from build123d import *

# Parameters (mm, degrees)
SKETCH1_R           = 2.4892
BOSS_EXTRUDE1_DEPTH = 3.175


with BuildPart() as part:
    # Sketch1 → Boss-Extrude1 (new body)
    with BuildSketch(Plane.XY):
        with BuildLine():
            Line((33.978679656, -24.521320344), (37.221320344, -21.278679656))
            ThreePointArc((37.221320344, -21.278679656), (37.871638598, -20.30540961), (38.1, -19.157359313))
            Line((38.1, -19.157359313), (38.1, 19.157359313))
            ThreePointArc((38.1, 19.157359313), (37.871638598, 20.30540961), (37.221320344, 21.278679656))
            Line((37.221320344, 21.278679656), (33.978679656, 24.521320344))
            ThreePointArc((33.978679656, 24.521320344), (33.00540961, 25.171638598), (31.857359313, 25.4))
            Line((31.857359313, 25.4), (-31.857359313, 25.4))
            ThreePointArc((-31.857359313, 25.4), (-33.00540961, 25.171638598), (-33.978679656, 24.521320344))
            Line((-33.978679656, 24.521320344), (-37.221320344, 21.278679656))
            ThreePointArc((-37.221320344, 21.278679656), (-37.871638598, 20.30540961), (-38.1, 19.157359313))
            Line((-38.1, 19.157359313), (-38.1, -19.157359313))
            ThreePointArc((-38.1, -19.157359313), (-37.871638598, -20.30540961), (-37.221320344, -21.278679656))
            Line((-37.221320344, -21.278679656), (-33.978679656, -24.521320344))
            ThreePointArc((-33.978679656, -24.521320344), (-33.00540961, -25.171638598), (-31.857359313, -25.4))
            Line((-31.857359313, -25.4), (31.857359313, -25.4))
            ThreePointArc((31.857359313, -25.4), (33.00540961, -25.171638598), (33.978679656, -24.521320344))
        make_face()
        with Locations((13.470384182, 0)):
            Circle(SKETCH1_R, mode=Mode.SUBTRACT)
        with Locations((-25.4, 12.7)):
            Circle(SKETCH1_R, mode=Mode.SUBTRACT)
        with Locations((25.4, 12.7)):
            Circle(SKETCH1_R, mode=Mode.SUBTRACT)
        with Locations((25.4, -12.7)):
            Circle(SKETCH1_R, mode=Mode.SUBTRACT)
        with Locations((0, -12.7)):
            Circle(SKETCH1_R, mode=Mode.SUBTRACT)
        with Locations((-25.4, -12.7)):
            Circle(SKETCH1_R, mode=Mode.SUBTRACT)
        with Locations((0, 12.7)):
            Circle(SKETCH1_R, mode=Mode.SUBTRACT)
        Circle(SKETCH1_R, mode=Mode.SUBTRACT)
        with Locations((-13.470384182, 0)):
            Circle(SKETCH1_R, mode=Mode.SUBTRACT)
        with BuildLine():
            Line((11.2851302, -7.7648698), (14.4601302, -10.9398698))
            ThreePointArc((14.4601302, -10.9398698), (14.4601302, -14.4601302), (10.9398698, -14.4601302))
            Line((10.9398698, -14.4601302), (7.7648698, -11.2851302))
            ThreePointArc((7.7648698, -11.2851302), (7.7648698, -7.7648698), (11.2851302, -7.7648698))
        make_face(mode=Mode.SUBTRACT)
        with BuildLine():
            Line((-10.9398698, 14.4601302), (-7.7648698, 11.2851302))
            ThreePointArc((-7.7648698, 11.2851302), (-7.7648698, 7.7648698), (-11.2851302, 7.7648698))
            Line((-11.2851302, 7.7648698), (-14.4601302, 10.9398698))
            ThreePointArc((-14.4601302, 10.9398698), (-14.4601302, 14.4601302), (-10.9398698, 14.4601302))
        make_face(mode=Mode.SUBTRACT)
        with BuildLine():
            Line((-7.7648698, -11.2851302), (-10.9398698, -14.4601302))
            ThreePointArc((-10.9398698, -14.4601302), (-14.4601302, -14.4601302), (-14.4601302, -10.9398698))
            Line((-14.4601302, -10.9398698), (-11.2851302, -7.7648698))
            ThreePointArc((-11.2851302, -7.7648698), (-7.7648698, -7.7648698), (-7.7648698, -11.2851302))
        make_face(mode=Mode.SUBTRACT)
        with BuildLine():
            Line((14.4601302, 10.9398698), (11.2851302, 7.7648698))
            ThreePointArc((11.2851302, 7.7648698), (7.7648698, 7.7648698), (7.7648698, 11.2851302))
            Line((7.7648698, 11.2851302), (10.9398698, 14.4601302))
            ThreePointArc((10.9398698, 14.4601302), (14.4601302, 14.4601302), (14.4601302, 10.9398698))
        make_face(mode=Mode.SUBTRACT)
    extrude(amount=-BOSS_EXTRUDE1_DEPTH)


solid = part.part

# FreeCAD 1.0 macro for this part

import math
import FreeCAD as App
import Part
import Sketcher
from FreeCAD import Vector
Q = App.Units.Quantity

doc = App.newDocument("Part")
params = doc.addObject("Spreadsheet::Sheet", "Params")
for row, (alias, value) in enumerate([
    ("sketch1_diameter", "0.196 in"),
    ("pad1_length", "0.125 in"),
], start=1):
    params.set(f"A{row}", alias)
    params.set(f"B{row}", "=" + value)
    params.setAlias(f"B{row}", alias)

body = doc.addObject("PartDesign::Body", "Body")

# Sketch on XY plane
sketch1 = body.newObject("Sketcher::SketchObject", "Sketch")
sketch1.AttachmentSupport = (doc.getObject("XY_Plane"), [""])
sketch1.MapMode = "FlatFace"
sketch1.addGeometry(Part.LineSegment(Vector(34, -24.5, 0), Vector(37.2, -21.3, 0)), False)
sketch1.addGeometry(Part.ArcOfCircle(Part.Circle(Vector(35.1, -19.2, 0), Vector(0, 0, 1), 3), math.radians(-45), math.radians(0)), False)
sketch1.addGeometry(Part.LineSegment(Vector(38.1, -19.2, 0), Vector(38.1, 19.2, 0)), False)
sketch1.addGeometry(Part.ArcOfCircle(Part.Circle(Vector(35.1, 19.2, 0), Vector(0, 0, 1), 3), math.radians(0), math.radians(45)), False)
sketch1.addGeometry(Part.LineSegment(Vector(37.2, 21.3, 0), Vector(34, 24.5, 0)), False)
sketch1.addGeometry(Part.ArcOfCircle(Part.Circle(Vector(31.9, 22.4, 0), Vector(0, 0, 1), 3), math.radians(45), math.radians(90)), False)
sketch1.addGeometry(Part.LineSegment(Vector(31.9, 25.4, 0), Vector(-31.9, 25.4, 0)), False)
sketch1.addGeometry(Part.ArcOfCircle(Part.Circle(Vector(-31.9, 22.4, 0), Vector(0, 0, 1), 3), math.radians(90), math.radians(135)), False)
sketch1.addGeometry(Part.LineSegment(Vector(-34, 24.5, 0), Vector(-37.2, 21.3, 0)), False)
sketch1.addGeometry(Part.ArcOfCircle(Part.Circle(Vector(-35.1, 19.2, 0), Vector(0, 0, 1), 3), math.radians(135), math.radians(180)), False)
sketch1.addGeometry(Part.LineSegment(Vector(-38.1, 19.2, 0), Vector(-38.1, -19.2, 0)), False)
sketch1.addGeometry(Part.ArcOfCircle(Part.Circle(Vector(-35.1, -19.2, 0), Vector(0, 0, 1), 3), math.radians(180), math.radians(225)), False)
sketch1.addGeometry(Part.LineSegment(Vector(-37.2, -21.3, 0), Vector(-34, -24.5, 0)), False)
sketch1.addGeometry(Part.ArcOfCircle(Part.Circle(Vector(-31.9, -22.4, 0), Vector(0, 0, 1), 3), math.radians(-135), math.radians(-90)), False)
sketch1.addGeometry(Part.LineSegment(Vector(-31.9, -25.4, 0), Vector(31.9, -25.4, 0)), False)
sketch1.addGeometry(Part.ArcOfCircle(Part.Circle(Vector(31.9, -22.4, 0), Vector(0, 0, 1), 3), math.radians(-90), math.radians(-45)), False)
sketch1.addGeometry(Part.Circle(Vector(-25.4, -12.7, 0), Vector(0, 0, 1), 2.5), False)
sketch1.addGeometry(Part.Circle(Vector(0, -12.7, 0), Vector(0, 0, 1), 2.5), False)
sketch1.addGeometry(Part.ArcOfCircle(Part.Circle(Vector(-9.5, -9.5, 0), Vector(0, 0, 1), 2.5), math.radians(-45), math.radians(135)), False)
sketch1.addGeometry(Part.LineSegment(Vector(-7.8, -11.3, 0), Vector(-10.9, -14.5, 0)), False)
sketch1.addGeometry(Part.ArcOfCircle(Part.Circle(Vector(-12.7, -12.7, 0), Vector(0, 0, 1), 2.5), math.radians(135), math.radians(315)), False)
sketch1.addGeometry(Part.LineSegment(Vector(-14.5, -10.9, 0), Vector(-11.3, -7.8, 0)), False)
sketch1.addGeometry(Part.ArcOfCircle(Part.Circle(Vector(9.5, -9.5, 0), Vector(0, 0, 1), 2.5), math.radians(45), math.radians(225)), False)
sketch1.addGeometry(Part.LineSegment(Vector(11.3, -7.8, 0), Vector(14.5, -10.9, 0)), False)
sketch1.addGeometry(Part.ArcOfCircle(Part.Circle(Vector(12.7, -12.7, 0), Vector(0, 0, 1), 2.5), math.radians(-135), math.radians(45)), False)
sketch1.addGeometry(Part.LineSegment(Vector(10.9, -14.5, 0), Vector(7.8, -11.3, 0)), False)
sketch1.addGeometry(Part.Circle(Vector(25.4, -12.7, 0), Vector(0, 0, 1), 2.5), False)
sketch1.addGeometry(Part.Circle(Vector(-13.5, 0, 0), Vector(0, 0, 1), 2.5), False)
sketch1.addGeometry(Part.Circle(Vector(0, 0, 0), Vector(0, 0, 1), 2.5), False)
sketch1.addGeometry(Part.Circle(Vector(-25.4, 12.7, 0), Vector(0, 0, 1), 2.5), False)
sketch1.addGeometry(Part.ArcOfCircle(Part.Circle(Vector(-12.7, 12.7, 0), Vector(0, 0, 1), 2.5), math.radians(45), math.radians(225)), False)
sketch1.addGeometry(Part.LineSegment(Vector(-10.9, 14.5, 0), Vector(-7.8, 11.3, 0)), False)
sketch1.addGeometry(Part.ArcOfCircle(Part.Circle(Vector(-9.5, 9.5, 0), Vector(0, 0, 1), 2.5), math.radians(-135), math.radians(45)), False)
sketch1.addGeometry(Part.LineSegment(Vector(-11.3, 7.8, 0), Vector(-14.5, 10.9, 0)), False)
sketch1.addGeometry(Part.Circle(Vector(0, 12.7, 0), Vector(0, 0, 1), 2.5), False)
sketch1.addGeometry(Part.Circle(Vector(13.5, 0, 0), Vector(0, 0, 1), 2.5), False)
sketch1.addGeometry(Part.ArcOfCircle(Part.Circle(Vector(12.7, 12.7, 0), Vector(0, 0, 1), 2.5), math.radians(-45), math.radians(135)), False)
sketch1.addGeometry(Part.LineSegment(Vector(14.5, 10.9, 0), Vector(11.3, 7.8, 0)), False)
sketch1.addGeometry(Part.ArcOfCircle(Part.Circle(Vector(9.5, 9.5, 0), Vector(0, 0, 1), 2.5), math.radians(135), math.radians(315)), False)
sketch1.addGeometry(Part.LineSegment(Vector(7.8, 11.3, 0), Vector(10.9, 14.5, 0)), False)
sketch1.addGeometry(Part.Circle(Vector(25.4, 12.7, 0), Vector(0, 0, 1), 2.5), False)
sketch1.addConstraint(Sketcher.Constraint("Tangent", 0, 2, 1, 1))
sketch1.addConstraint(Sketcher.Constraint("Tangent", 1, 2, 2, 1))
sketch1.addConstraint(Sketcher.Constraint("Tangent", 2, 2, 3, 1))
sketch1.addConstraint(Sketcher.Constraint("Tangent", 3, 2, 4, 1))
sketch1.addConstraint(Sketcher.Constraint("Tangent", 4, 2, 5, 1))
sketch1.addConstraint(Sketcher.Constraint("Tangent", 5, 2, 6, 1))
sketch1.addConstraint(Sketcher.Constraint("Tangent", 6, 2, 7, 1))
sketch1.addConstraint(Sketcher.Constraint("Tangent", 7, 2, 8, 1))
sketch1.addConstraint(Sketcher.Constraint("Tangent", 8, 2, 9, 1))
sketch1.addConstraint(Sketcher.Constraint("Tangent", 9, 2, 10, 1))
sketch1.addConstraint(Sketcher.Constraint("Tangent", 10, 2, 11, 1))
sketch1.addConstraint(Sketcher.Constraint("Tangent", 11, 2, 12, 1))
sketch1.addConstraint(Sketcher.Constraint("Tangent", 12, 2, 13, 1))
sketch1.addConstraint(Sketcher.Constraint("Tangent", 13, 2, 14, 1))
sketch1.addConstraint(Sketcher.Constraint("Tangent", 14, 2, 15, 1))
sketch1.addConstraint(Sketcher.Constraint("Tangent", 15, 2, 0, 1))
sketch1.addConstraint(Sketcher.Constraint("Tangent", 18, 1, 19, 1))
sketch1.addConstraint(Sketcher.Constraint("Tangent", 19, 2, 20, 2))
sketch1.addConstraint(Sketcher.Constraint("Tangent", 20, 1, 21, 1))
sketch1.addConstraint(Sketcher.Constraint("Tangent", 21, 2, 18, 2))
sketch1.addConstraint(Sketcher.Constraint("Tangent", 22, 1, 23, 1))
sketch1.addConstraint(Sketcher.Constraint("Tangent", 23, 2, 24, 2))
sketch1.addConstraint(Sketcher.Constraint("Tangent", 24, 1, 25, 1))
sketch1.addConstraint(Sketcher.Constraint("Tangent", 25, 2, 22, 2))
sketch1.addConstraint(Sketcher.Constraint("Tangent", 30, 1, 31, 1))
sketch1.addConstraint(Sketcher.Constraint("Tangent", 31, 2, 32, 2))
sketch1.addConstraint(Sketcher.Constraint("Tangent", 32, 1, 33, 1))
sketch1.addConstraint(Sketcher.Constraint("Tangent", 33, 2, 30, 2))
sketch1.addConstraint(Sketcher.Constraint("Tangent", 36, 1, 37, 1))
sketch1.addConstraint(Sketcher.Constraint("Tangent", 37, 2, 38, 2))
sketch1.addConstraint(Sketcher.Constraint("Tangent", 38, 1, 39, 1))
sketch1.addConstraint(Sketcher.Constraint("Tangent", 39, 2, 36, 2))
sketch1.addConstraint(Sketcher.Constraint("Vertical", 2))
sketch1.addConstraint(Sketcher.Constraint("Horizontal", 6))
sketch1.addConstraint(Sketcher.Constraint("Vertical", 10))
sketch1.addConstraint(Sketcher.Constraint("Horizontal", 14))
sketch1.addConstraint(Sketcher.Constraint("Coincident", 28, 3, -1, 1))
sketch1.addConstraint(Sketcher.Constraint("Equal", 1, 3))
sketch1.addConstraint(Sketcher.Constraint("Equal", 3, 5))
sketch1.addConstraint(Sketcher.Constraint("Equal", 5, 7))
sketch1.addConstraint(Sketcher.Constraint("Equal", 7, 9))
sketch1.addConstraint(Sketcher.Constraint("Equal", 9, 11))
sketch1.addConstraint(Sketcher.Constraint("Equal", 11, 13))
sketch1.addConstraint(Sketcher.Constraint("Equal", 13, 15))
sketch1.addConstraint(Sketcher.Constraint("Equal", 16, 17))
sketch1.addConstraint(Sketcher.Constraint("Equal", 17, 18))
sketch1.addConstraint(Sketcher.Constraint("Equal", 18, 20))
sketch1.addConstraint(Sketcher.Constraint("Equal", 20, 22))
sketch1.addConstraint(Sketcher.Constraint("Equal", 22, 24))
sketch1.addConstraint(Sketcher.Constraint("Equal", 24, 26))
sketch1.addConstraint(Sketcher.Constraint("Equal", 26, 27))
sketch1.addConstraint(Sketcher.Constraint("Equal", 27, 28))
sketch1.addConstraint(Sketcher.Constraint("Equal", 28, 29))
sketch1.addConstraint(Sketcher.Constraint("Equal", 29, 30))
sketch1.addConstraint(Sketcher.Constraint("Equal", 30, 32))
sketch1.addConstraint(Sketcher.Constraint("Equal", 32, 34))
sketch1.addConstraint(Sketcher.Constraint("Equal", 34, 35))
sketch1.addConstraint(Sketcher.Constraint("Equal", 35, 36))
sketch1.addConstraint(Sketcher.Constraint("Equal", 36, 38))
sketch1.addConstraint(Sketcher.Constraint("Equal", 38, 40))
sketch1.addConstraint(Sketcher.Constraint("Symmetric", 1, 3, 9, 3, -1, 1))
sketch1.addConstraint(Sketcher.Constraint("Symmetric", 5, 3, 13, 3, -1, 1))
sketch1.addConstraint(Sketcher.Constraint("Symmetric", 26, 3, 29, 3, -1, 1))
sketch1.addConstraint(Sketcher.Constraint("Symmetric", 24, 3, 30, 3, -1, 1))
sketch1.addConstraint(Sketcher.Constraint("Symmetric", 22, 3, 32, 3, -1, 1))
sketch1.addConstraint(Sketcher.Constraint("Symmetric", 17, 3, 34, 3, -1, 1))
sketch1.addConstraint(Sketcher.Constraint("Symmetric", 27, 3, 35, 3, -1, 1))
sketch1.addConstraint(Sketcher.Constraint("Symmetric", 20, 3, 36, 3, -1, 1))
sketch1.addConstraint(Sketcher.Constraint("Symmetric", 18, 3, 38, 3, -1, 1))
sketch1.addConstraint(Sketcher.Constraint("Symmetric", 16, 3, 40, 3, -1, 1))
sketch1.addConstraint(Sketcher.Constraint("Symmetric", 18, 3, 22, 3, -2))
sketch1.addConstraint(Sketcher.Constraint("Symmetric", 20, 3, 24, 3, -2))
sketch1.addConstraint(Sketcher.Constraint("Symmetric", 16, 3, 26, 3, -2))
sketch1.addConstraint(Sketcher.Constraint("Symmetric", 4, 2, 7, 2, -2))
sketch1.addConstraint(Sketcher.Constraint("Symmetric", 0, 2, 11, 2, -2))
sketch1.addConstraint(Sketcher.Constraint("PointOnObject", 17, 3, -2))
sketch1.addConstraint(Sketcher.Constraint("PointOnObject", 27, 3, -1))
sketch1.addConstraint(Sketcher.Constraint("Perpendicular", 0, 4))
sketch1.addConstraint(Sketcher.Constraint("Perpendicular", 12, 19))
sketch1.addConstraint(Sketcher.Constraint("Horizontal", 16, 3, 17, 3))
sketch1.addConstraint(Sketcher.Constraint("Horizontal", 17, 3, 20, 3))
sketch1.addConstraint(Sketcher.Constraint("Diameter", 16, Q("0.196 in")))
sketch1.addConstraint(Sketcher.Constraint("DistanceX", 16, 3, -1, 1, Q("1 in")))
sketch1.addConstraint(Sketcher.Constraint("DistanceY", -1, 1, 5, 2, Q("1 in")))
sketch1.addConstraint(Sketcher.Constraint("DistanceY", 16, 3, 29, 3, Q("1 in")))
sketch1.addConstraint(Sketcher.Constraint("DistanceX", 24, 3, 1, 2, Q("1 in")))
sketch1.addConstraint(Sketcher.Constraint("DistanceX", 20, 3, -1, 1, Q("0.5 in")))
sketch1.addConstraint(Sketcher.Constraint("Radius", 1, Q("3 mm")))
sketch1.addConstraint(Sketcher.Constraint("DistanceX", 18, 3, 22, 3, Q("0.75 in")))
sketch1.addConstraint(Sketcher.Constraint("DistanceX", 6, 2, 6, 1, Q("63.714719 mm")))
sketch1.addConstraint(Sketcher.Constraint("DistanceX", 27, 3, -1, 1, Q("13.470384 mm")))
sketch1.setExpression("Constraints[81]", "Params.sketch1_diameter")
pad1 = body.newObject("PartDesign::Pad", "Pad")
pad1.Profile = sketch1
pad1.setExpression("Length", "Params.pad1_length")
pad1.Reversed = True

doc.recompute()
